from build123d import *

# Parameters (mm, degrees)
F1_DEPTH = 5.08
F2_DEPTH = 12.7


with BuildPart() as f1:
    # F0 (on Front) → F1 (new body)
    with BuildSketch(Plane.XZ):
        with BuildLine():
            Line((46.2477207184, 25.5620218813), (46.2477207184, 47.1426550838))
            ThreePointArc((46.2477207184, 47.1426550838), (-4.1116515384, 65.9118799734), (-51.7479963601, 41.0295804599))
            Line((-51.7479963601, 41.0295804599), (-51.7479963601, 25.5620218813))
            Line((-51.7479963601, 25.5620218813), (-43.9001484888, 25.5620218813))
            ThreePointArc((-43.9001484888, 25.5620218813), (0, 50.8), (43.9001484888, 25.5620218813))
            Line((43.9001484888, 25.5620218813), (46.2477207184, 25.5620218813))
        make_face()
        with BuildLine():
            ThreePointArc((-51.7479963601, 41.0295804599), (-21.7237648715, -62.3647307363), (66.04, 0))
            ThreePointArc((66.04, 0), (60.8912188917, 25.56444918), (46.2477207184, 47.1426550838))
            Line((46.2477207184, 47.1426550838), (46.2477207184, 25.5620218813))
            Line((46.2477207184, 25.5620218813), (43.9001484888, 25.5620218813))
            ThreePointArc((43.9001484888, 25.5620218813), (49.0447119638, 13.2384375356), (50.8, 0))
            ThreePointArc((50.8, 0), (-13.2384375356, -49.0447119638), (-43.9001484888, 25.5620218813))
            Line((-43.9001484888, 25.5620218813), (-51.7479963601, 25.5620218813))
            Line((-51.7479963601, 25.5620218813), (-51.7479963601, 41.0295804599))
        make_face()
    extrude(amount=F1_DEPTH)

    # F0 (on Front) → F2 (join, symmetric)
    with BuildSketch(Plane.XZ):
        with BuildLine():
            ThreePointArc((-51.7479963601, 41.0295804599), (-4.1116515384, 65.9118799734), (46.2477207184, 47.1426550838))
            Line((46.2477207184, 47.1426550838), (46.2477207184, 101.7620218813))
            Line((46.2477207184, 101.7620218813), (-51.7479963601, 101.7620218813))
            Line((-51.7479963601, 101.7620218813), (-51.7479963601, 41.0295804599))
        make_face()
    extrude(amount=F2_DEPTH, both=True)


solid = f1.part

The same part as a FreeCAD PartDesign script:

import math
import FreeCAD as App
import Part
import Sketcher

V = App.Vector
Q = App.Units.Quantity

doc = App.newDocument("Part")
params = doc.addObject("Spreadsheet::Sheet", "Params")
for row, (alias, value) in enumerate([
    ("sketch1_radius", "2 in"),
    ("sketch1_radius2", "2.6 in"),
    ("pad1_length", "0.2 in"),
    ("sketch2_radius", "2.6 in"),
    ("pad2_length", "1 in"),
], start=1):
    params.set(f"A{row}", alias)
    params.set(f"B{row}", "=" + value)
    params.setAlias(f"B{row}", alias)

body = doc.addObject("PartDesign::Body", "Body")

# Sketch on XZ plane
sketch1 = doc.addObject("Sketcher::SketchObject", "Sketch")
body.addObject(sketch1)
sketch1.AttachmentSupport = (doc.XZ_Plane, [""])
sketch1.MapMode = "FlatFace"
sketch1.addGeometry(Part.ArcOfCircle(Part.Circle(V(0, 0, 0), V(0, 0, 1), 66), math.radians(46), math.radians(360)), False)
sketch1.addGeometry(Part.ArcOfCircle(Part.Circle(V(0, 0, 0), V(0, 0, 1), 66), math.radians(0), math.radians(46)), False)
sketch1.addGeometry(Part.ArcOfCircle(Part.Circle(V(0, 0, 0), V(0, 0, 1), 51), math.radians(0), math.radians(30)), False)
sketch1.addGeometry(Part.ArcOfCircle(Part.Circle(V(0, 0, 0), V(0, 0, 1), 51), math.radians(30), math.radians(360)), False)
sketch1.addConstraint(Sketcher.Constraint("Tangent", 0, 1, 1, 2))
sketch1.addConstraint(Sketcher.Constraint("Coincident", 1, 1, 0, 2))
sketch1.addConstraint(Sketcher.Constraint("Tangent", 2, 1, 3, 2))
sketch1.addConstraint(Sketcher.Constraint("Coincident", 3, 1, 2, 2))
sketch1.addConstraint(Sketcher.Constraint("Coincident", 0, 3, -1, 1))
sketch1.addConstraint(Sketcher.Constraint("Coincident", 2, 3, -1, 1))
sketch1.addConstraint(Sketcher.Constraint("PointOnObject", 1, 1, -1))
sketch1.addConstraint(Sketcher.Constraint("PointOnObject", 2, 1, -1))
sketch1.addConstraint(Sketcher.Constraint("Radius", 2, Q("2 in")))
sketch1.addConstraint(Sketcher.Constraint("Radius", 0, Q("2.6 in")))
sketch1.addConstraint(Sketcher.Constraint("DistanceX", -1, 1, 0, 1, 46.247721))
sketch1.addConstraint(Sketcher.Constraint("DistanceX", -1, 1, 3, 1, 43.900148))
sketch1.setExpression("Constraints[8]", "Params.sketch1_radius")
sketch1.setExpression("Constraints[9]", "Params.sketch1_radius2")
pad1 = doc.addObject("PartDesign::Pad", "Pad")
body.addObject(pad1)
pad1.Profile = sketch1
pad1.setExpression("Length", "Params.pad1_length")

# Sketch on XZ plane
sketch2 = doc.addObject("Sketcher::SketchObject", "Sketch001")
body.addObject(sketch2)
sketch2.AttachmentSupport = (doc.XZ_Plane, [""])
sketch2.MapMode = "FlatFace"
sketch2.addGeometry(Part.ArcOfCircle(Part.Circle(V(0, 0, 0), V(0, 0, 1), 66), math.radians(46), math.radians(142)), False)
sketch2.addGeometry(Part.LineSegment(V(46, 47, 0), V(46, 102, 0)), False)
sketch2.addGeometry(Part.LineSegment(V(46, 102, 0), V(-52, 102, 0)), False)
sketch2.addGeometry(Part.LineSegment(V(-52, 102, 0), V(-52, 41, 0)), False)
sketch2.addConstraint(Sketcher.Constraint("Coincident", 0, 1, 1, 1))
sketch2.addConstraint(Sketcher.Constraint("Coincident", 1, 2, 2, 1))
sketch2.addConstraint(Sketcher.Constraint("Coincident", 2, 2, 3, 1))
sketch2.addConstraint(Sketcher.Constraint("Coincident", 3, 2, 0, 2))
sketch2.addConstraint(Sketcher.Constraint("Vertical", 1))
sketch2.addConstraint(Sketcher.Constraint("Horizontal", 2))
sketch2.addConstraint(Sketcher.Constraint("Vertical", 3))
sketch2.addConstraint(Sketcher.Constraint("Coincident", 0, 3, -1, 1))
sketch2.addConstraint(Sketcher.Constraint("Radius", 0, Q("2.6 in")))
sketch2.addConstraint(Sketcher.Constraint("DistanceY", 3, 2, 3, 1, 60.732441))
sketch2.addConstraint(Sketcher.Constraint("DistanceX", 2, 2, 2, 1, 97.995717))
sketch2.addConstraint(Sketcher.Constraint("DistanceY", 1, 1, 1, 2, 54.619367))
sketch2.setExpression("Constraints[8]", "Params.sketch2_radius")
pad2 = doc.addObject("PartDesign::Pad", "Pad001")
body.addObject(pad2)
pad2.Profile = sketch2
pad2.setExpression("Length", "Params.pad2_length")
pad2.Midplane = True

doc.recompute()
